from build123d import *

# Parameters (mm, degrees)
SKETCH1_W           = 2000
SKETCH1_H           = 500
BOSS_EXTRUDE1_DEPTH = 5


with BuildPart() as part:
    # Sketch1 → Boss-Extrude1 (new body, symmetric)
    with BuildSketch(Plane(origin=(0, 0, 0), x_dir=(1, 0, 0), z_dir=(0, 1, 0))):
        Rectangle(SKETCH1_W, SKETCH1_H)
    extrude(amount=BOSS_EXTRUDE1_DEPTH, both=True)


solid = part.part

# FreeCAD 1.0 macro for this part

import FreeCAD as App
import Part
import Sketcher
Q = App.Units.Quantity

doc = App.newDocument("Part")
body = doc.addObject("PartDesign::Body", "Body")

sketch1 = body.newObject("Sketcher::SketchObject", "Sketch")
sketch1.AttachmentSupport = (doc.getObject("XZ_Plane"), [""])
sketch1.MapMode = "FlatFace"
sketch1.addGeometry([
    Part.LineSegment(App.Vector(-1000, -250, 0), App.Vector(-1000, 250, 0)),
    Part.LineSegment(App.Vector(-1000, 250, 0), App.Vector(1000, 250, 0)),
    Part.LineSegment(App.Vector(1000, 250, 0), App.Vector(1000, -250, 0)),
    Part.LineSegment(App.Vector(1000, -250, 0), App.Vector(-1000, -250, 0)),
], False)
sketch1.addConstraint([
    Sketcher.Constraint("Coincident", 0, 2, 1, 1),
    Sketcher.Constraint("Coincident", 1, 2, 2, 1),
    Sketcher.Constraint("Coincident", 2, 2, 3, 1),
    Sketcher.Constraint("Coincident", 3, 2, 0, 1),
    Sketcher.Constraint("Vertical", 0),
    Sketcher.Constraint("Horizontal", 1),
    Sketcher.Constraint("Vertical", 2),
    Sketcher.Constraint("Horizontal", 3),
    Sketcher.Constraint("Symmetric", 0, 2, 2, 2, -1, 1),
    Sketcher.Constraint("DistanceX", 1, 1, 1, 2, Q("2000 mm")),
    Sketcher.Constraint("DistanceY", 0, 1, 0, 2, Q("500 mm")),
])
pad1 = body.newObject("PartDesign::Pad", "Pad")
pad1.Profile = sketch1
pad1.Length = 10
pad1.Midplane = True

doc.recompute()
